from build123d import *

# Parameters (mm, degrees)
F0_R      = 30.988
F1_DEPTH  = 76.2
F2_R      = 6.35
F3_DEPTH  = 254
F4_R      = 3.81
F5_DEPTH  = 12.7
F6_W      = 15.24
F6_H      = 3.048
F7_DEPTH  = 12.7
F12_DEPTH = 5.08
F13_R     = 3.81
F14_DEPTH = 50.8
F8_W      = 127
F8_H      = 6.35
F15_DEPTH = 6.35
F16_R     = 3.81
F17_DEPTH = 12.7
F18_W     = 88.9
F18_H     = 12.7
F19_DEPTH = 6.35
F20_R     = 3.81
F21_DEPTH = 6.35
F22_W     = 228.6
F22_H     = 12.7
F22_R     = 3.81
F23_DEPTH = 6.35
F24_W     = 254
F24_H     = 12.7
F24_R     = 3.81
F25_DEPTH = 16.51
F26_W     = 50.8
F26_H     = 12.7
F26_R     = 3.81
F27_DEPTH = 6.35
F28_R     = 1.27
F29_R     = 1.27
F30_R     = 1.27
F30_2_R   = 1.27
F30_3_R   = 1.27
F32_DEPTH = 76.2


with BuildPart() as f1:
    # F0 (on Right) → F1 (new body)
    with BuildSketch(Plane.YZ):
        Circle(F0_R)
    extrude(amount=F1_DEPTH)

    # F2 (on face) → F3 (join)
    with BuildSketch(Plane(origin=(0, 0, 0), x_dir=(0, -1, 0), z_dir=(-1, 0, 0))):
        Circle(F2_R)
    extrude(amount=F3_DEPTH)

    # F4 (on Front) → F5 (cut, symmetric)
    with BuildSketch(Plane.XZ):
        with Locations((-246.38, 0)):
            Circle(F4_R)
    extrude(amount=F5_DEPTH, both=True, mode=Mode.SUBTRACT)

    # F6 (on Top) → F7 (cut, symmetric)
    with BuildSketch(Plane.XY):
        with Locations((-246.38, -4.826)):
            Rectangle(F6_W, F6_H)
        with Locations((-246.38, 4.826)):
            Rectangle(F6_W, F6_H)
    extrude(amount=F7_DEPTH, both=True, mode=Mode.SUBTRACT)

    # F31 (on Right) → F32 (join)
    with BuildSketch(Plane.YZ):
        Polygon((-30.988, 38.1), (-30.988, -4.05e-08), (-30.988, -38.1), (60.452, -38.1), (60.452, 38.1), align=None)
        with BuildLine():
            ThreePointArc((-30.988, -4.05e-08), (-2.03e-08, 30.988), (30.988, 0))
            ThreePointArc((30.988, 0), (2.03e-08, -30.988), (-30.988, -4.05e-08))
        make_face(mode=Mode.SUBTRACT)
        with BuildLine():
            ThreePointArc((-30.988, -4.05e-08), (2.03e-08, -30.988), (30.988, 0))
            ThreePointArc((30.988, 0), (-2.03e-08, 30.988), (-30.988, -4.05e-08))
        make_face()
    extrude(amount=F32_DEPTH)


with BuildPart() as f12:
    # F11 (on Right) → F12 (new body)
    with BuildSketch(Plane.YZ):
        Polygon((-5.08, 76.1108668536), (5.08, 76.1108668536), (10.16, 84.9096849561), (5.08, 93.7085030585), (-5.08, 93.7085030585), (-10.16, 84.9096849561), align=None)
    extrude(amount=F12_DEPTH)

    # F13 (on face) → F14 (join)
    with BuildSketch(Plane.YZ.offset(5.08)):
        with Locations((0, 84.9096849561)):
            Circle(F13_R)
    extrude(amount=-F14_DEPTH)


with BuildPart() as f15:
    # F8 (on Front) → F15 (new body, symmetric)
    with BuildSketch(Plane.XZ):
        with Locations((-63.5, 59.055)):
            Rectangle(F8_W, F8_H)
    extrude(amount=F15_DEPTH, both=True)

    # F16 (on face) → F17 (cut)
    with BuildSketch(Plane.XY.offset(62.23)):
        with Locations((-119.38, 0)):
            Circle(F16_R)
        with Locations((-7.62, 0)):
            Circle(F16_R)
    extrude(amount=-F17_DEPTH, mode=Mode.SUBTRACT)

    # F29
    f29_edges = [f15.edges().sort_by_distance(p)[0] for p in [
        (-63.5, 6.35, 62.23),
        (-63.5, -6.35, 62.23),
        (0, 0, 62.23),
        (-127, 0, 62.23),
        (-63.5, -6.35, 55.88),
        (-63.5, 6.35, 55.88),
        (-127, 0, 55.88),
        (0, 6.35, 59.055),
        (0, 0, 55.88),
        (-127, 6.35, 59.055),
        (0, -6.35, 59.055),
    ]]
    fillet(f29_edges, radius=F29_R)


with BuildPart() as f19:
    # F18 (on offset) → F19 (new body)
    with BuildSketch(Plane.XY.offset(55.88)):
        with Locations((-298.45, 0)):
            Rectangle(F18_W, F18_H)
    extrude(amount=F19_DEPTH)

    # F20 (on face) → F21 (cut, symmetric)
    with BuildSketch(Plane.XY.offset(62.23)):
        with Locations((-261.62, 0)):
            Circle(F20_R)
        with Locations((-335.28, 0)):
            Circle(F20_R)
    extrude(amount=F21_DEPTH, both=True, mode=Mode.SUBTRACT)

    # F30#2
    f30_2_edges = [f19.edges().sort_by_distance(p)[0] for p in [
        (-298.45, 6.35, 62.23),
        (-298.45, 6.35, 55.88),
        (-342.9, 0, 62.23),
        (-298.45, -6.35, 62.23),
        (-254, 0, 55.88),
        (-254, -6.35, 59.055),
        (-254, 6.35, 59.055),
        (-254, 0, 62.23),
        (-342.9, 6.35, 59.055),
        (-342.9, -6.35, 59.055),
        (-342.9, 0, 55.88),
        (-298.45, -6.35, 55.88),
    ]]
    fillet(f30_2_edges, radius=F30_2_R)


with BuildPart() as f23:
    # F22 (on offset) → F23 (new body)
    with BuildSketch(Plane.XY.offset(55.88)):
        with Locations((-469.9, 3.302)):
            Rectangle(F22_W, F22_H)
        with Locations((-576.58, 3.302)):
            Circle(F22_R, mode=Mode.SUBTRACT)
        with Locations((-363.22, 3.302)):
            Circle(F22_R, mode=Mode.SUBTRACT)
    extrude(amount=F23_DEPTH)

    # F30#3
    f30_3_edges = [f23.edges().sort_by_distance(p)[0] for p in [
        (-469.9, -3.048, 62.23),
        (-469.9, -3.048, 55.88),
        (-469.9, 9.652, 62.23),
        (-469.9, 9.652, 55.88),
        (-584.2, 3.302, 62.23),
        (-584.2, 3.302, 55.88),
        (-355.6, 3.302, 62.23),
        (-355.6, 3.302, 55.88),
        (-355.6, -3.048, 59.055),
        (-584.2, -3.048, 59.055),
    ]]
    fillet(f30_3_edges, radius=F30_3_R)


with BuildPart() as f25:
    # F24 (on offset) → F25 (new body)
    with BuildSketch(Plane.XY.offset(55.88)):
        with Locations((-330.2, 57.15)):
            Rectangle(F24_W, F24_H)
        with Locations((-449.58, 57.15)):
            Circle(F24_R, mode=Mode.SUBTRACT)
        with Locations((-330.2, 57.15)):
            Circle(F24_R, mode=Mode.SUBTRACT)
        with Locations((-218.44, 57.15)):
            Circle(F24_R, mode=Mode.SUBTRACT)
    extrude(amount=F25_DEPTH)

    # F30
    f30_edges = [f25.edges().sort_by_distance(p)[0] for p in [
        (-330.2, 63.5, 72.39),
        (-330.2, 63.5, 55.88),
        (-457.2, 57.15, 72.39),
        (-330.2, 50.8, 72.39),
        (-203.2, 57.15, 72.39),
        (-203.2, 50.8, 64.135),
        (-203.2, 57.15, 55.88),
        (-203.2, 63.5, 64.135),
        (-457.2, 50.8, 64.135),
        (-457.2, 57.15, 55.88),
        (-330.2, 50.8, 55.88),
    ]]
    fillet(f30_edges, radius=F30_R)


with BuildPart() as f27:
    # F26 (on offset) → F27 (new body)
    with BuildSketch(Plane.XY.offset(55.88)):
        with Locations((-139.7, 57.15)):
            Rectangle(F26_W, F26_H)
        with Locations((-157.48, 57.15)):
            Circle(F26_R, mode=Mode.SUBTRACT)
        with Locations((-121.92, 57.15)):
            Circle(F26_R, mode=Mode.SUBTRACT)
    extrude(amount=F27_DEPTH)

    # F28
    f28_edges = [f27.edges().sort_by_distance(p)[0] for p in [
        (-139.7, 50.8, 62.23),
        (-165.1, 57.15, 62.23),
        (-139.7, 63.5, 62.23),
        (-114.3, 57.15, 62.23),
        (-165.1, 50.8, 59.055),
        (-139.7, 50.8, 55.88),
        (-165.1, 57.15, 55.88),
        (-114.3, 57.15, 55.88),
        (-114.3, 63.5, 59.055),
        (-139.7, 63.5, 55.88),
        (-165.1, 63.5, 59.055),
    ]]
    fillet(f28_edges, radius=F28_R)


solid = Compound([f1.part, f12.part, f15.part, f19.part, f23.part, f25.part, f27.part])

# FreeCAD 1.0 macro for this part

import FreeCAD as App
import Part
import Sketcher
from FreeCAD import Vector
Q = App.Units.Quantity


def edges_at(feature, points):
    """Names of the edges that pass closest to the given points."""
    edges = feature.Shape.Edges
    near = lambda p: min(range(len(edges)), key=lambda i: edges[i].distToShape(Part.Vertex(*p))[0])
    return sorted({f"Edge{near(p) + 1}" for p in points})


def add_polygon(sketch, points):
    """Adds a closed chain of lines whose ends are joined by coincident constraints."""
    first, n = sketch.GeometryCount, len(points)
    for a, b in zip(points, points[1:] + points[:1]):
        sketch.addGeometry(Part.LineSegment(App.Vector(*a, 0), App.Vector(*b, 0)), False)
    for i in range(n):
        sketch.addConstraint(Sketcher.Constraint("Coincident", first + i, 2, first + (i + 1) % n, 1))

doc = App.newDocument("Part")
body = doc.addObject("PartDesign::Body", "Body")

# Sketch on YZ plane
sketch1 = body.newObject("Sketcher::SketchObject", "Sketch")
sketch1.AttachmentSupport = (doc.getObject("YZ_Plane"), [""])
sketch1.MapMode = "FlatFace"
sketch1.addGeometry(Part.Circle(Vector(0, 0, 0), Vector(0, 0, 1), 30.988), False)
sketch1.addConstraint(Sketcher.Constraint("Coincident", 0, 3, -1, 1))
sketch1.addConstraint(Sketcher.Constraint("Diameter", 0, Q("2.44 in")))
pad1 = body.newObject("PartDesign::Pad", "Pad")
pad1.Profile = sketch1
pad1.Length = Q("3 in")

# Sketch on YZ plane
sketch2 = body.newObject("Sketcher::SketchObject", "Sketch001")
sketch2.AttachmentSupport = (doc.getObject("YZ_Plane"), [""])
sketch2.MapMode = "FlatFace"
sketch2.addGeometry(Part.Circle(Vector(0, 0, 0), Vector(0, 0, 1), 6.35), False)
sketch2.addConstraint(Sketcher.Constraint("Coincident", 0, 3, -1, 1))
sketch2.addConstraint(Sketcher.Constraint("Diameter", 0, Q("0.5 in")))
pad2 = body.newObject("PartDesign::Pad", "Pad001")
pad2.Profile = sketch2
pad2.Length = Q("10 in")
pad2.Reversed = True

# Sketch on XZ plane
sketch3 = body.newObject("Sketcher::SketchObject", "Sketch002")
sketch3.AttachmentSupport = (doc.getObject("XZ_Plane"), [""])
sketch3.MapMode = "FlatFace"
sketch3.addGeometry(Part.Circle(Vector(-246.38, 0, 0), Vector(0, 0, 1), 3.81), False)
sketch3.addConstraint(Sketcher.Constraint("PointOnObject", 0, 3, -1))
sketch3.addConstraint(Sketcher.Constraint("Diameter", 0, Q("0.3 in")))
sketch3.addConstraint(Sketcher.Constraint("DistanceX", 0, 3, -1, 1, Q("9.7 in")))
pocket1 = body.newObject("PartDesign::Pocket", "Pocket")
pocket1.Profile = sketch3
pocket1.Length = Q("1 in")
pocket1.Midplane = True

# Sketch on XY plane
sketch4 = body.newObject("Sketcher::SketchObject", "Sketch003")
sketch4.AttachmentSupport = (doc.getObject("XY_Plane"), [""])
sketch4.MapMode = "FlatFace"
add_polygon(sketch4, [(-254, -3.302), (-254, -6.35), (-238.76, -6.35), (-238.76, -3.302)])  # lines 0-3
add_polygon(sketch4, [(-254, 6.35), (-254, 3.302), (-238.76, 3.302), (-238.76, 6.35)])  # lines 4-7
sketch4.addConstraint(Sketcher.Constraint("Vertical", 0))
sketch4.addConstraint(Sketcher.Constraint("Horizontal", 1))
sketch4.addConstraint(Sketcher.Constraint("Vertical", 2))
sketch4.addConstraint(Sketcher.Constraint("Horizontal", 3))
sketch4.addConstraint(Sketcher.Constraint("Vertical", 4))
sketch4.addConstraint(Sketcher.Constraint("Horizontal", 5))
sketch4.addConstraint(Sketcher.Constraint("Vertical", 6))
sketch4.addConstraint(Sketcher.Constraint("Horizontal", 7))
sketch4.addConstraint(Sketcher.Constraint("Symmetric", 3, 2, 4, 2, -1))
sketch4.addConstraint(Sketcher.Constraint("Symmetric", 1, 2, 6, 2, -1))
sketch4.addConstraint(Sketcher.Constraint("DistanceX", 1, 1, 1, 2, Q("0.6 in")))
sketch4.addConstraint(Sketcher.Constraint("DistanceX", 0, 2, -1, 1, Q("10 in")))
sketch4.addConstraint(Sketcher.Constraint("DistanceY", 0, 2, 0, 1, Q("0.12 in")))
sketch4.addConstraint(Sketcher.Constraint("DistanceY", 1, 2, 6, 2, Q("0.5 in")))
pocket2 = body.newObject("PartDesign::Pocket", "Pocket001")
pocket2.Profile = sketch4
pocket2.Length = Q("1 in")
pocket2.Midplane = True

# Sketch on YZ plane
sketch5 = body.newObject("Sketcher::SketchObject", "Sketch004")
sketch5.AttachmentSupport = (doc.getObject("YZ_Plane"), [""])
sketch5.MapMode = "FlatFace"
add_polygon(sketch5, [(60.452, -38.1), (60.452, 38.1), (-30.988, 38.1), (-30.988, -38.1)])  # lines 0-3
sketch5.addConstraint(Sketcher.Constraint("Vertical", 0))
sketch5.addConstraint(Sketcher.Constraint("Horizontal", 1))
sketch5.addConstraint(Sketcher.Constraint("Vertical", 2))
sketch5.addConstraint(Sketcher.Constraint("Horizontal", 3))
sketch5.addConstraint(Sketcher.Constraint("DistanceY", 0, 1, 0, 2, Q("3 in")))
sketch5.addConstraint(Sketcher.Constraint("DistanceX", 1, 2, 1, 1, Q("3.6 in")))
sketch5.addConstraint(Sketcher.Constraint("DistanceY", -1, 1, 0, 2, Q("1.5 in")))
sketch5.addConstraint(Sketcher.Constraint("DistanceX", -1, 1, 0, 2, Q("2.38 in")))
pad3 = body.newObject("PartDesign::Pad", "Pad002")
pad3.Profile = sketch5
pad3.Length = Q("3 in")
body2 = doc.addObject("PartDesign::Body", "Body001")

# Sketch on YZ plane
sketch6 = body2.newObject("Sketcher::SketchObject", "Sketch005")
sketch6.AttachmentSupport = (doc.getObject("YZ_Plane001"), [""])
sketch6.MapMode = "FlatFace"
add_polygon(sketch6, [(-5.08, 76.110867), (5.08, 76.110867), (10.16, 84.909685), (5.08, 93.708503), (-5.08, 93.708503), (-10.16, 84.909685)])  # lines 0-5
sketch6.addConstraint(Sketcher.Constraint("Horizontal", 0))
sketch6.addConstraint(Sketcher.Constraint("Horizontal", 3))
sketch6.addConstraint(Sketcher.Constraint("Symmetric", 1, 2, 4, 2, -2))
sketch6.addConstraint(Sketcher.Constraint("Parallel", 1, 4))
sketch6.addConstraint(Sketcher.Constraint("Parallel", 2, 5))
sketch6.addConstraint(Sketcher.Constraint("Vertical", 0, 2, 2, 2))
sketch6.addConstraint(Sketcher.Constraint("Vertical", 3, 2, 5, 2))
sketch6.addConstraint(Sketcher.Constraint("DistanceX", 0, 1, 0, 2, Q("0.4 in")))
sketch6.addConstraint(Sketcher.Constraint("Angle", 1, Q("60 deg")))
sketch6.addConstraint(Sketcher.Constraint("Distance", 1, Q("0.4 in")))
sketch6.addConstraint(Sketcher.Constraint("DistanceY", -1, 1, 0, 2, Q("76.110867 mm")))
pad4 = body2.newObject("PartDesign::Pad", "Pad003")
pad4.Profile = sketch6
pad4.Length = Q("0.2 in")

# Sketch on YZ plane
sketch7 = body2.newObject("Sketcher::SketchObject", "Sketch006")
sketch7.AttachmentSupport = (doc.getObject("YZ_Plane001"), [""])
sketch7.MapMode = "FlatFace"
sketch7.AttachmentOffset = App.Placement(Vector(0, 0, 0.2 * 25.4), App.Rotation())
sketch7.addGeometry(Part.Circle(Vector(0, 84.909685, 0), Vector(0, 0, 1), 3.81), False)
sketch7.addConstraint(Sketcher.Constraint("PointOnObject", 0, 3, -2))
sketch7.addConstraint(Sketcher.Constraint("Diameter", 0, Q("0.3 in")))
sketch7.addConstraint(Sketcher.Constraint("DistanceY", -1, 1, 0, 3, Q("84.909685 mm")))
pad5 = body2.newObject("PartDesign::Pad", "Pad004")
pad5.Profile = sketch7
pad5.Length = Q("2 in")
pad5.Reversed = True
body3 = doc.addObject("PartDesign::Body", "Body002")

# Sketch on XZ plane
sketch8 = body3.newObject("Sketcher::SketchObject", "Sketch007")
sketch8.AttachmentSupport = (doc.getObject("XZ_Plane002"), [""])
sketch8.MapMode = "FlatFace"
add_polygon(sketch8, [(-127, 62.23), (-127, 55.88), (0, 55.88), (0, 62.23)])  # lines 0-3
sketch8.addConstraint(Sketcher.Constraint("Vertical", 0))
sketch8.addConstraint(Sketcher.Constraint("Horizontal", 1))
sketch8.addConstraint(Sketcher.Constraint("Vertical", 2))
sketch8.addConstraint(Sketcher.Constraint("Horizontal", 3))
sketch8.addConstraint(Sketcher.Constraint("PointOnObject", 1, 2, -2))
sketch8.addConstraint(Sketcher.Constraint("DistanceX", 1, 1, 1, 2, Q("5 in")))
sketch8.addConstraint(Sketcher.Constraint("DistanceY", 0, 2, 0, 1, Q("0.25 in")))
sketch8.addConstraint(Sketcher.Constraint("DistanceY", -1, 1, 0, 2, Q("2.2 in")))
pad6 = body3.newObject("PartDesign::Pad", "Pad005")
pad6.Profile = sketch8
pad6.Length = Q("0.5 in")
pad6.Midplane = True

# Sketch on XY plane
sketch9 = body3.newObject("Sketcher::SketchObject", "Sketch008")
sketch9.AttachmentSupport = (doc.getObject("XY_Plane002"), [""])
sketch9.MapMode = "FlatFace"
sketch9.AttachmentOffset = App.Placement(Vector(0, 0, 2.45 * 25.4), App.Rotation())
sketch9.addGeometry(Part.Circle(Vector(-119.38, 0, 0), Vector(0, 0, 1), 3.81), False)
sketch9.addGeometry(Part.Circle(Vector(-7.62, 0, 0), Vector(0, 0, 1), 3.81), False)
sketch9.addConstraint(Sketcher.Constraint("Equal", 0, 1))
sketch9.addConstraint(Sketcher.Constraint("PointOnObject", 0, 3, -1))
sketch9.addConstraint(Sketcher.Constraint("PointOnObject", 1, 3, -1))
sketch9.addConstraint(Sketcher.Constraint("Diameter", 0, Q("0.3 in")))
sketch9.addConstraint(Sketcher.Constraint("DistanceX", 0, 3, -1, 1, Q("4.7 in")))
sketch9.addConstraint(Sketcher.Constraint("DistanceX", 1, 3, -1, 1, Q("0.3 in")))
pocket3 = body3.newObject("PartDesign::Pocket", "Pocket002")
pocket3.Profile = sketch9
pocket3.Length = Q("0.5 in")
doc.recompute()

fillet = body3.newObject("PartDesign::Fillet", "Fillet")
fillet.Base = (pocket3, edges_at(pocket3, [
    (-63.5, 6.35, 62.23),
    (-63.5, -6.35, 62.23),
    (0, 0, 62.23),
    (-127, 0, 62.23),
    (-63.5, -6.35, 55.88),
    (-63.5, 6.35, 55.88),
    (-127, 0, 55.88),
    (0, 6.35, 59.055),
    (0, 0, 55.88),
    (-127, 6.35, 59.055),
    (0, -6.35, 59.055),
]))
fillet.Radius = Q("0.05 in")
body4 = doc.addObject("PartDesign::Body", "Body003")

# Sketch on XY plane
sketch10 = body4.newObject("Sketcher::SketchObject", "Sketch009")
sketch10.AttachmentSupport = (doc.getObject("XY_Plane003"), [""])
sketch10.MapMode = "FlatFace"
sketch10.AttachmentOffset = App.Placement(Vector(0, 0, 2.2 * 25.4), App.Rotation())
add_polygon(sketch10, [(-342.9, 6.35), (-342.9, -6.35), (-254, -6.35), (-254, 6.35)])  # lines 0-3
sketch10.addConstraint(Sketcher.Constraint("Vertical", 0))
sketch10.addConstraint(Sketcher.Constraint("Horizontal", 1))
sketch10.addConstraint(Sketcher.Constraint("Vertical", 2))
sketch10.addConstraint(Sketcher.Constraint("Horizontal", 3))
sketch10.addConstraint(Sketcher.Constraint("DistanceX", 1, 1, 1, 2, Q("3.5 in")))
sketch10.addConstraint(Sketcher.Constraint("DistanceY", 0, 2, 0, 1, Q("0.5 in")))
sketch10.addConstraint(Sketcher.Constraint("DistanceX", 1, 2, -1, 1, Q("10 in")))
sketch10.addConstraint(Sketcher.Constraint("DistanceY", 0, 2, -1, 1, Q("0.25 in")))
pad7 = body4.newObject("PartDesign::Pad", "Pad006")
pad7.Profile = sketch10
pad7.Length = Q("0.25 in")

# Sketch on XY plane
sketch11 = body4.newObject("Sketcher::SketchObject", "Sketch010")
sketch11.AttachmentSupport = (doc.getObject("XY_Plane003"), [""])
sketch11.MapMode = "FlatFace"
sketch11.AttachmentOffset = App.Placement(Vector(0, 0, 2.45 * 25.4), App.Rotation())
sketch11.addGeometry(Part.Circle(Vector(-261.62, 0, 0), Vector(0, 0, 1), 3.81), False)
sketch11.addGeometry(Part.Circle(Vector(-335.28, 0, 0), Vector(0, 0, 1), 3.81), False)
sketch11.addConstraint(Sketcher.Constraint("Equal", 0, 1))
sketch11.addConstraint(Sketcher.Constraint("PointOnObject", 0, 3, -1))
sketch11.addConstraint(Sketcher.Constraint("PointOnObject", 1, 3, -1))
sketch11.addConstraint(Sketcher.Constraint("Diameter", 0, Q("0.3 in")))
sketch11.addConstraint(Sketcher.Constraint("DistanceX", 0, 3, -1, 1, Q("10.3 in")))
sketch11.addConstraint(Sketcher.Constraint("DistanceX", 1, 3, -1, 1, Q("13.2 in")))
pocket4 = body4.newObject("PartDesign::Pocket", "Pocket003")
pocket4.Profile = sketch11
pocket4.Length = Q("0.5 in")
pocket4.Midplane = True
doc.recompute()

fillet2 = body4.newObject("PartDesign::Fillet", "Fillet001")
fillet2.Base = (pocket4, edges_at(pocket4, [
    (-298.45, 6.35, 62.23),
    (-298.45, 6.35, 55.88),
    (-342.9, 0, 62.23),
    (-298.45, -6.35, 62.23),
    (-254, 0, 55.88),
    (-254, -6.35, 59.055),
    (-254, 6.35, 59.055),
    (-254, 0, 62.23),
    (-342.9, 6.35, 59.055),
    (-342.9, -6.35, 59.055),
    (-342.9, 0, 55.88),
    (-298.45, -6.35, 55.88),
]))
fillet2.Radius = Q("0.05 in")
body5 = doc.addObject("PartDesign::Body", "Body004")

# Sketch on XY plane
sketch12 = body5.newObject("Sketcher::SketchObject", "Sketch011")
sketch12.AttachmentSupport = (doc.getObject("XY_Plane004"), [""])
sketch12.MapMode = "FlatFace"
sketch12.AttachmentOffset = App.Placement(Vector(0, 0, 2.2 * 25.4), App.Rotation())
add_polygon(sketch12, [(-584.2, 9.652), (-584.2, -3.048), (-355.6, -3.048), (-355.6, 9.652)])  # lines 0-3
sketch12.addGeometry(Part.Circle(Vector(-576.58, 3.302, 0), Vector(0, 0, 1), 3.81), False)  # 4
sketch12.addGeometry(Part.Circle(Vector(-363.22, 3.302, 0), Vector(0, 0, 1), 3.81), False)  # 5
sketch12.addConstraint(Sketcher.Constraint("Vertical", 0))
sketch12.addConstraint(Sketcher.Constraint("Horizontal", 1))
sketch12.addConstraint(Sketcher.Constraint("Vertical", 2))
sketch12.addConstraint(Sketcher.Constraint("Horizontal", 3))
sketch12.addConstraint(Sketcher.Constraint("Equal", 4, 5))
sketch12.addConstraint(Sketcher.Constraint("Horizontal", 4, 3, 5, 3))
sketch12.addConstraint(Sketcher.Constraint("Diameter", 4, Q("0.3 in")))
sketch12.addConstraint(Sketcher.Constraint("DistanceX", 1, 1, 1, 2, Q("9 in")))
sketch12.addConstraint(Sketcher.Constraint("DistanceY", 0, 2, 0, 1, Q("0.5 in")))
sketch12.addConstraint(Sketcher.Constraint("DistanceX", 0, 2, -1, 1, Q("23 in")))
sketch12.addConstraint(Sketcher.Constraint("DistanceX", 4, 3, -1, 1, Q("22.7 in")))
sketch12.addConstraint(Sketcher.Constraint("DistanceX", 5, 3, -1, 1, Q("14.3 in")))
sketch12.addConstraint(Sketcher.Constraint("DistanceY", -1, 1, 4, 3, Q("0.13 in")))
sketch12.addConstraint(Sketcher.Constraint("DistanceY", 0, 2, -1, 1, Q("0.12 in")))
pad8 = body5.newObject("PartDesign::Pad", "Pad007")
pad8.Profile = sketch12
pad8.Length = Q("0.25 in")
doc.recompute()

fillet3 = body5.newObject("PartDesign::Fillet", "Fillet002")
fillet3.Base = (pad8, edges_at(pad8, [
    (-469.9, -3.048, 62.23),
    (-469.9, -3.048, 55.88),
    (-469.9, 9.652, 62.23),
    (-469.9, 9.652, 55.88),
    (-584.2, 3.302, 62.23),
    (-584.2, 3.302, 55.88),
    (-355.6, 3.302, 62.23),
    (-355.6, 3.302, 55.88),
    (-355.6, -3.048, 59.055),
    (-584.2, -3.048, 59.055),
]))
fillet3.Radius = Q("0.05 in")
body6 = doc.addObject("PartDesign::Body", "Body005")

# Sketch on XY plane
sketch13 = body6.newObject("Sketcher::SketchObject", "Sketch012")
sketch13.AttachmentSupport = (doc.getObject("XY_Plane005"), [""])
sketch13.MapMode = "FlatFace"
sketch13.AttachmentOffset = App.Placement(Vector(0, 0, 2.2 * 25.4), App.Rotation())
add_polygon(sketch13, [(-457.2, 63.5), (-457.2, 50.8), (-203.2, 50.8), (-203.2, 63.5)])  # lines 0-3
sketch13.addGeometry(Part.Circle(Vector(-449.58, 57.15, 0), Vector(0, 0, 1), 3.81), False)  # 4
sketch13.addGeometry(Part.Circle(Vector(-330.2, 57.15, 0), Vector(0, 0, 1), 3.81), False)  # 5
sketch13.addGeometry(Part.Circle(Vector(-218.44, 57.15, 0), Vector(0, 0, 1), 3.81), False)  # 6
sketch13.addConstraint(Sketcher.Constraint("Vertical", 0))
sketch13.addConstraint(Sketcher.Constraint("Horizontal", 1))
sketch13.addConstraint(Sketcher.Constraint("Vertical", 2))
sketch13.addConstraint(Sketcher.Constraint("Horizontal", 3))
sketch13.addConstraint(Sketcher.Constraint("Equal", 4, 5))
sketch13.addConstraint(Sketcher.Constraint("Equal", 5, 6))
sketch13.addConstraint(Sketcher.Constraint("Horizontal", 4, 3, 5, 3))
sketch13.addConstraint(Sketcher.Constraint("Horizontal", 5, 3, 6, 3))
sketch13.addConstraint(Sketcher.Constraint("Diameter", 4, Q("0.3 in")))
sketch13.addConstraint(Sketcher.Constraint("DistanceX", 1, 1, 1, 2, Q("10 in")))
sketch13.addConstraint(Sketcher.Constraint("DistanceY", 0, 2, 0, 1, Q("0.5 in")))
sketch13.addConstraint(Sketcher.Constraint("DistanceX", 5, 3, -1, 1, Q("13 in")))
sketch13.addConstraint(Sketcher.Constraint("DistanceX", 0, 2, -1, 1, Q("18 in")))
sketch13.addConstraint(Sketcher.Constraint("DistanceY", -1, 1, 0, 2, Q("2 in")))
sketch13.addConstraint(Sketcher.Constraint("DistanceX", 4, 3, -1, 1, Q("17.7 in")))
sketch13.addConstraint(Sketcher.Constraint("DistanceX", 6, 3, -1, 1, Q("8.6 in")))
sketch13.addConstraint(Sketcher.Constraint("DistanceY", -1, 1, 4, 3, Q("2.25 in")))
pad9 = body6.newObject("PartDesign::Pad", "Pad008")
pad9.Profile = sketch13
pad9.Length = Q("0.65 in")
doc.recompute()

fillet4 = body6.newObject("PartDesign::Fillet", "Fillet003")
fillet4.Base = (pad9, edges_at(pad9, [
    (-330.2, 63.5, 72.39),
    (-330.2, 63.5, 55.88),
    (-457.2, 57.15, 72.39),
    (-330.2, 50.8, 72.39),
    (-203.2, 57.15, 72.39),
    (-203.2, 50.8, 64.135),
    (-203.2, 57.15, 55.88),
    (-203.2, 63.5, 64.135),
    (-457.2, 50.8, 64.135),
    (-457.2, 57.15, 55.88),
    (-330.2, 50.8, 55.88),
]))
fillet4.Radius = Q("0.05 in")
body7 = doc.addObject("PartDesign::Body", "Body006")

# Sketch on XY plane
sketch14 = body7.newObject("Sketcher::SketchObject", "Sketch013")
sketch14.AttachmentSupport = (doc.getObject("XY_Plane006"), [""])
sketch14.MapMode = "FlatFace"
sketch14.AttachmentOffset = App.Placement(Vector(0, 0, 2.2 * 25.4), App.Rotation())
add_polygon(sketch14, [(-165.1, 63.5), (-165.1, 50.8), (-114.3, 50.8), (-114.3, 63.5)])  # lines 0-3
sketch14.addGeometry(Part.Circle(Vector(-157.48, 57.15, 0), Vector(0, 0, 1), 3.81), False)  # 4
sketch14.addGeometry(Part.Circle(Vector(-121.92, 57.15, 0), Vector(0, 0, 1), 3.81), False)  # 5
sketch14.addConstraint(Sketcher.Constraint("Vertical", 0))
sketch14.addConstraint(Sketcher.Constraint("Horizontal", 1))
sketch14.addConstraint(Sketcher.Constraint("Vertical", 2))
sketch14.addConstraint(Sketcher.Constraint("Horizontal", 3))
sketch14.addConstraint(Sketcher.Constraint("Equal", 4, 5))
sketch14.addConstraint(Sketcher.Constraint("Horizontal", 4, 3, 5, 3))
sketch14.addConstraint(Sketcher.Constraint("Diameter", 4, Q("0.3 in")))
sketch14.addConstraint(Sketcher.Constraint("DistanceX", 1, 1, 1, 2, Q("2 in")))
sketch14.addConstraint(Sketcher.Constraint("DistanceY", 0, 2, 0, 1, Q("0.5 in")))
sketch14.addConstraint(Sketcher.Constraint("DistanceY", -1, 1, 0, 2, Q("2 in")))
sketch14.addConstraint(Sketcher.Constraint("DistanceX", 4, 3, -1, 1, Q("6.2 in")))
sketch14.addConstraint(Sketcher.Constraint("DistanceX", 5, 3, -1, 1, Q("4.8 in")))
sketch14.addConstraint(Sketcher.Constraint("DistanceX", 0, 2, -1, 1, Q("6.5 in")))
sketch14.addConstraint(Sketcher.Constraint("DistanceY", -1, 1, 4, 3, Q("2.25 in")))
pad10 = body7.newObject("PartDesign::Pad", "Pad009")
pad10.Profile = sketch14
pad10.Length = Q("0.25 in")
doc.recompute()

fillet5 = body7.newObject("PartDesign::Fillet", "Fillet004")
fillet5.Base = (pad10, edges_at(pad10, [
    (-139.7, 50.8, 62.23),
    (-165.1, 57.15, 62.23),
    (-139.7, 63.5, 62.23),
    (-114.3, 57.15, 62.23),
    (-165.1, 50.8, 59.055),
    (-139.7, 50.8, 55.88),
    (-165.1, 57.15, 55.88),
    (-114.3, 57.15, 55.88),
    (-114.3, 63.5, 59.055),
    (-139.7, 63.5, 55.88),
    (-165.1, 63.5, 59.055),
]))
fillet5.Radius = Q("0.05 in")

doc.recompute()
